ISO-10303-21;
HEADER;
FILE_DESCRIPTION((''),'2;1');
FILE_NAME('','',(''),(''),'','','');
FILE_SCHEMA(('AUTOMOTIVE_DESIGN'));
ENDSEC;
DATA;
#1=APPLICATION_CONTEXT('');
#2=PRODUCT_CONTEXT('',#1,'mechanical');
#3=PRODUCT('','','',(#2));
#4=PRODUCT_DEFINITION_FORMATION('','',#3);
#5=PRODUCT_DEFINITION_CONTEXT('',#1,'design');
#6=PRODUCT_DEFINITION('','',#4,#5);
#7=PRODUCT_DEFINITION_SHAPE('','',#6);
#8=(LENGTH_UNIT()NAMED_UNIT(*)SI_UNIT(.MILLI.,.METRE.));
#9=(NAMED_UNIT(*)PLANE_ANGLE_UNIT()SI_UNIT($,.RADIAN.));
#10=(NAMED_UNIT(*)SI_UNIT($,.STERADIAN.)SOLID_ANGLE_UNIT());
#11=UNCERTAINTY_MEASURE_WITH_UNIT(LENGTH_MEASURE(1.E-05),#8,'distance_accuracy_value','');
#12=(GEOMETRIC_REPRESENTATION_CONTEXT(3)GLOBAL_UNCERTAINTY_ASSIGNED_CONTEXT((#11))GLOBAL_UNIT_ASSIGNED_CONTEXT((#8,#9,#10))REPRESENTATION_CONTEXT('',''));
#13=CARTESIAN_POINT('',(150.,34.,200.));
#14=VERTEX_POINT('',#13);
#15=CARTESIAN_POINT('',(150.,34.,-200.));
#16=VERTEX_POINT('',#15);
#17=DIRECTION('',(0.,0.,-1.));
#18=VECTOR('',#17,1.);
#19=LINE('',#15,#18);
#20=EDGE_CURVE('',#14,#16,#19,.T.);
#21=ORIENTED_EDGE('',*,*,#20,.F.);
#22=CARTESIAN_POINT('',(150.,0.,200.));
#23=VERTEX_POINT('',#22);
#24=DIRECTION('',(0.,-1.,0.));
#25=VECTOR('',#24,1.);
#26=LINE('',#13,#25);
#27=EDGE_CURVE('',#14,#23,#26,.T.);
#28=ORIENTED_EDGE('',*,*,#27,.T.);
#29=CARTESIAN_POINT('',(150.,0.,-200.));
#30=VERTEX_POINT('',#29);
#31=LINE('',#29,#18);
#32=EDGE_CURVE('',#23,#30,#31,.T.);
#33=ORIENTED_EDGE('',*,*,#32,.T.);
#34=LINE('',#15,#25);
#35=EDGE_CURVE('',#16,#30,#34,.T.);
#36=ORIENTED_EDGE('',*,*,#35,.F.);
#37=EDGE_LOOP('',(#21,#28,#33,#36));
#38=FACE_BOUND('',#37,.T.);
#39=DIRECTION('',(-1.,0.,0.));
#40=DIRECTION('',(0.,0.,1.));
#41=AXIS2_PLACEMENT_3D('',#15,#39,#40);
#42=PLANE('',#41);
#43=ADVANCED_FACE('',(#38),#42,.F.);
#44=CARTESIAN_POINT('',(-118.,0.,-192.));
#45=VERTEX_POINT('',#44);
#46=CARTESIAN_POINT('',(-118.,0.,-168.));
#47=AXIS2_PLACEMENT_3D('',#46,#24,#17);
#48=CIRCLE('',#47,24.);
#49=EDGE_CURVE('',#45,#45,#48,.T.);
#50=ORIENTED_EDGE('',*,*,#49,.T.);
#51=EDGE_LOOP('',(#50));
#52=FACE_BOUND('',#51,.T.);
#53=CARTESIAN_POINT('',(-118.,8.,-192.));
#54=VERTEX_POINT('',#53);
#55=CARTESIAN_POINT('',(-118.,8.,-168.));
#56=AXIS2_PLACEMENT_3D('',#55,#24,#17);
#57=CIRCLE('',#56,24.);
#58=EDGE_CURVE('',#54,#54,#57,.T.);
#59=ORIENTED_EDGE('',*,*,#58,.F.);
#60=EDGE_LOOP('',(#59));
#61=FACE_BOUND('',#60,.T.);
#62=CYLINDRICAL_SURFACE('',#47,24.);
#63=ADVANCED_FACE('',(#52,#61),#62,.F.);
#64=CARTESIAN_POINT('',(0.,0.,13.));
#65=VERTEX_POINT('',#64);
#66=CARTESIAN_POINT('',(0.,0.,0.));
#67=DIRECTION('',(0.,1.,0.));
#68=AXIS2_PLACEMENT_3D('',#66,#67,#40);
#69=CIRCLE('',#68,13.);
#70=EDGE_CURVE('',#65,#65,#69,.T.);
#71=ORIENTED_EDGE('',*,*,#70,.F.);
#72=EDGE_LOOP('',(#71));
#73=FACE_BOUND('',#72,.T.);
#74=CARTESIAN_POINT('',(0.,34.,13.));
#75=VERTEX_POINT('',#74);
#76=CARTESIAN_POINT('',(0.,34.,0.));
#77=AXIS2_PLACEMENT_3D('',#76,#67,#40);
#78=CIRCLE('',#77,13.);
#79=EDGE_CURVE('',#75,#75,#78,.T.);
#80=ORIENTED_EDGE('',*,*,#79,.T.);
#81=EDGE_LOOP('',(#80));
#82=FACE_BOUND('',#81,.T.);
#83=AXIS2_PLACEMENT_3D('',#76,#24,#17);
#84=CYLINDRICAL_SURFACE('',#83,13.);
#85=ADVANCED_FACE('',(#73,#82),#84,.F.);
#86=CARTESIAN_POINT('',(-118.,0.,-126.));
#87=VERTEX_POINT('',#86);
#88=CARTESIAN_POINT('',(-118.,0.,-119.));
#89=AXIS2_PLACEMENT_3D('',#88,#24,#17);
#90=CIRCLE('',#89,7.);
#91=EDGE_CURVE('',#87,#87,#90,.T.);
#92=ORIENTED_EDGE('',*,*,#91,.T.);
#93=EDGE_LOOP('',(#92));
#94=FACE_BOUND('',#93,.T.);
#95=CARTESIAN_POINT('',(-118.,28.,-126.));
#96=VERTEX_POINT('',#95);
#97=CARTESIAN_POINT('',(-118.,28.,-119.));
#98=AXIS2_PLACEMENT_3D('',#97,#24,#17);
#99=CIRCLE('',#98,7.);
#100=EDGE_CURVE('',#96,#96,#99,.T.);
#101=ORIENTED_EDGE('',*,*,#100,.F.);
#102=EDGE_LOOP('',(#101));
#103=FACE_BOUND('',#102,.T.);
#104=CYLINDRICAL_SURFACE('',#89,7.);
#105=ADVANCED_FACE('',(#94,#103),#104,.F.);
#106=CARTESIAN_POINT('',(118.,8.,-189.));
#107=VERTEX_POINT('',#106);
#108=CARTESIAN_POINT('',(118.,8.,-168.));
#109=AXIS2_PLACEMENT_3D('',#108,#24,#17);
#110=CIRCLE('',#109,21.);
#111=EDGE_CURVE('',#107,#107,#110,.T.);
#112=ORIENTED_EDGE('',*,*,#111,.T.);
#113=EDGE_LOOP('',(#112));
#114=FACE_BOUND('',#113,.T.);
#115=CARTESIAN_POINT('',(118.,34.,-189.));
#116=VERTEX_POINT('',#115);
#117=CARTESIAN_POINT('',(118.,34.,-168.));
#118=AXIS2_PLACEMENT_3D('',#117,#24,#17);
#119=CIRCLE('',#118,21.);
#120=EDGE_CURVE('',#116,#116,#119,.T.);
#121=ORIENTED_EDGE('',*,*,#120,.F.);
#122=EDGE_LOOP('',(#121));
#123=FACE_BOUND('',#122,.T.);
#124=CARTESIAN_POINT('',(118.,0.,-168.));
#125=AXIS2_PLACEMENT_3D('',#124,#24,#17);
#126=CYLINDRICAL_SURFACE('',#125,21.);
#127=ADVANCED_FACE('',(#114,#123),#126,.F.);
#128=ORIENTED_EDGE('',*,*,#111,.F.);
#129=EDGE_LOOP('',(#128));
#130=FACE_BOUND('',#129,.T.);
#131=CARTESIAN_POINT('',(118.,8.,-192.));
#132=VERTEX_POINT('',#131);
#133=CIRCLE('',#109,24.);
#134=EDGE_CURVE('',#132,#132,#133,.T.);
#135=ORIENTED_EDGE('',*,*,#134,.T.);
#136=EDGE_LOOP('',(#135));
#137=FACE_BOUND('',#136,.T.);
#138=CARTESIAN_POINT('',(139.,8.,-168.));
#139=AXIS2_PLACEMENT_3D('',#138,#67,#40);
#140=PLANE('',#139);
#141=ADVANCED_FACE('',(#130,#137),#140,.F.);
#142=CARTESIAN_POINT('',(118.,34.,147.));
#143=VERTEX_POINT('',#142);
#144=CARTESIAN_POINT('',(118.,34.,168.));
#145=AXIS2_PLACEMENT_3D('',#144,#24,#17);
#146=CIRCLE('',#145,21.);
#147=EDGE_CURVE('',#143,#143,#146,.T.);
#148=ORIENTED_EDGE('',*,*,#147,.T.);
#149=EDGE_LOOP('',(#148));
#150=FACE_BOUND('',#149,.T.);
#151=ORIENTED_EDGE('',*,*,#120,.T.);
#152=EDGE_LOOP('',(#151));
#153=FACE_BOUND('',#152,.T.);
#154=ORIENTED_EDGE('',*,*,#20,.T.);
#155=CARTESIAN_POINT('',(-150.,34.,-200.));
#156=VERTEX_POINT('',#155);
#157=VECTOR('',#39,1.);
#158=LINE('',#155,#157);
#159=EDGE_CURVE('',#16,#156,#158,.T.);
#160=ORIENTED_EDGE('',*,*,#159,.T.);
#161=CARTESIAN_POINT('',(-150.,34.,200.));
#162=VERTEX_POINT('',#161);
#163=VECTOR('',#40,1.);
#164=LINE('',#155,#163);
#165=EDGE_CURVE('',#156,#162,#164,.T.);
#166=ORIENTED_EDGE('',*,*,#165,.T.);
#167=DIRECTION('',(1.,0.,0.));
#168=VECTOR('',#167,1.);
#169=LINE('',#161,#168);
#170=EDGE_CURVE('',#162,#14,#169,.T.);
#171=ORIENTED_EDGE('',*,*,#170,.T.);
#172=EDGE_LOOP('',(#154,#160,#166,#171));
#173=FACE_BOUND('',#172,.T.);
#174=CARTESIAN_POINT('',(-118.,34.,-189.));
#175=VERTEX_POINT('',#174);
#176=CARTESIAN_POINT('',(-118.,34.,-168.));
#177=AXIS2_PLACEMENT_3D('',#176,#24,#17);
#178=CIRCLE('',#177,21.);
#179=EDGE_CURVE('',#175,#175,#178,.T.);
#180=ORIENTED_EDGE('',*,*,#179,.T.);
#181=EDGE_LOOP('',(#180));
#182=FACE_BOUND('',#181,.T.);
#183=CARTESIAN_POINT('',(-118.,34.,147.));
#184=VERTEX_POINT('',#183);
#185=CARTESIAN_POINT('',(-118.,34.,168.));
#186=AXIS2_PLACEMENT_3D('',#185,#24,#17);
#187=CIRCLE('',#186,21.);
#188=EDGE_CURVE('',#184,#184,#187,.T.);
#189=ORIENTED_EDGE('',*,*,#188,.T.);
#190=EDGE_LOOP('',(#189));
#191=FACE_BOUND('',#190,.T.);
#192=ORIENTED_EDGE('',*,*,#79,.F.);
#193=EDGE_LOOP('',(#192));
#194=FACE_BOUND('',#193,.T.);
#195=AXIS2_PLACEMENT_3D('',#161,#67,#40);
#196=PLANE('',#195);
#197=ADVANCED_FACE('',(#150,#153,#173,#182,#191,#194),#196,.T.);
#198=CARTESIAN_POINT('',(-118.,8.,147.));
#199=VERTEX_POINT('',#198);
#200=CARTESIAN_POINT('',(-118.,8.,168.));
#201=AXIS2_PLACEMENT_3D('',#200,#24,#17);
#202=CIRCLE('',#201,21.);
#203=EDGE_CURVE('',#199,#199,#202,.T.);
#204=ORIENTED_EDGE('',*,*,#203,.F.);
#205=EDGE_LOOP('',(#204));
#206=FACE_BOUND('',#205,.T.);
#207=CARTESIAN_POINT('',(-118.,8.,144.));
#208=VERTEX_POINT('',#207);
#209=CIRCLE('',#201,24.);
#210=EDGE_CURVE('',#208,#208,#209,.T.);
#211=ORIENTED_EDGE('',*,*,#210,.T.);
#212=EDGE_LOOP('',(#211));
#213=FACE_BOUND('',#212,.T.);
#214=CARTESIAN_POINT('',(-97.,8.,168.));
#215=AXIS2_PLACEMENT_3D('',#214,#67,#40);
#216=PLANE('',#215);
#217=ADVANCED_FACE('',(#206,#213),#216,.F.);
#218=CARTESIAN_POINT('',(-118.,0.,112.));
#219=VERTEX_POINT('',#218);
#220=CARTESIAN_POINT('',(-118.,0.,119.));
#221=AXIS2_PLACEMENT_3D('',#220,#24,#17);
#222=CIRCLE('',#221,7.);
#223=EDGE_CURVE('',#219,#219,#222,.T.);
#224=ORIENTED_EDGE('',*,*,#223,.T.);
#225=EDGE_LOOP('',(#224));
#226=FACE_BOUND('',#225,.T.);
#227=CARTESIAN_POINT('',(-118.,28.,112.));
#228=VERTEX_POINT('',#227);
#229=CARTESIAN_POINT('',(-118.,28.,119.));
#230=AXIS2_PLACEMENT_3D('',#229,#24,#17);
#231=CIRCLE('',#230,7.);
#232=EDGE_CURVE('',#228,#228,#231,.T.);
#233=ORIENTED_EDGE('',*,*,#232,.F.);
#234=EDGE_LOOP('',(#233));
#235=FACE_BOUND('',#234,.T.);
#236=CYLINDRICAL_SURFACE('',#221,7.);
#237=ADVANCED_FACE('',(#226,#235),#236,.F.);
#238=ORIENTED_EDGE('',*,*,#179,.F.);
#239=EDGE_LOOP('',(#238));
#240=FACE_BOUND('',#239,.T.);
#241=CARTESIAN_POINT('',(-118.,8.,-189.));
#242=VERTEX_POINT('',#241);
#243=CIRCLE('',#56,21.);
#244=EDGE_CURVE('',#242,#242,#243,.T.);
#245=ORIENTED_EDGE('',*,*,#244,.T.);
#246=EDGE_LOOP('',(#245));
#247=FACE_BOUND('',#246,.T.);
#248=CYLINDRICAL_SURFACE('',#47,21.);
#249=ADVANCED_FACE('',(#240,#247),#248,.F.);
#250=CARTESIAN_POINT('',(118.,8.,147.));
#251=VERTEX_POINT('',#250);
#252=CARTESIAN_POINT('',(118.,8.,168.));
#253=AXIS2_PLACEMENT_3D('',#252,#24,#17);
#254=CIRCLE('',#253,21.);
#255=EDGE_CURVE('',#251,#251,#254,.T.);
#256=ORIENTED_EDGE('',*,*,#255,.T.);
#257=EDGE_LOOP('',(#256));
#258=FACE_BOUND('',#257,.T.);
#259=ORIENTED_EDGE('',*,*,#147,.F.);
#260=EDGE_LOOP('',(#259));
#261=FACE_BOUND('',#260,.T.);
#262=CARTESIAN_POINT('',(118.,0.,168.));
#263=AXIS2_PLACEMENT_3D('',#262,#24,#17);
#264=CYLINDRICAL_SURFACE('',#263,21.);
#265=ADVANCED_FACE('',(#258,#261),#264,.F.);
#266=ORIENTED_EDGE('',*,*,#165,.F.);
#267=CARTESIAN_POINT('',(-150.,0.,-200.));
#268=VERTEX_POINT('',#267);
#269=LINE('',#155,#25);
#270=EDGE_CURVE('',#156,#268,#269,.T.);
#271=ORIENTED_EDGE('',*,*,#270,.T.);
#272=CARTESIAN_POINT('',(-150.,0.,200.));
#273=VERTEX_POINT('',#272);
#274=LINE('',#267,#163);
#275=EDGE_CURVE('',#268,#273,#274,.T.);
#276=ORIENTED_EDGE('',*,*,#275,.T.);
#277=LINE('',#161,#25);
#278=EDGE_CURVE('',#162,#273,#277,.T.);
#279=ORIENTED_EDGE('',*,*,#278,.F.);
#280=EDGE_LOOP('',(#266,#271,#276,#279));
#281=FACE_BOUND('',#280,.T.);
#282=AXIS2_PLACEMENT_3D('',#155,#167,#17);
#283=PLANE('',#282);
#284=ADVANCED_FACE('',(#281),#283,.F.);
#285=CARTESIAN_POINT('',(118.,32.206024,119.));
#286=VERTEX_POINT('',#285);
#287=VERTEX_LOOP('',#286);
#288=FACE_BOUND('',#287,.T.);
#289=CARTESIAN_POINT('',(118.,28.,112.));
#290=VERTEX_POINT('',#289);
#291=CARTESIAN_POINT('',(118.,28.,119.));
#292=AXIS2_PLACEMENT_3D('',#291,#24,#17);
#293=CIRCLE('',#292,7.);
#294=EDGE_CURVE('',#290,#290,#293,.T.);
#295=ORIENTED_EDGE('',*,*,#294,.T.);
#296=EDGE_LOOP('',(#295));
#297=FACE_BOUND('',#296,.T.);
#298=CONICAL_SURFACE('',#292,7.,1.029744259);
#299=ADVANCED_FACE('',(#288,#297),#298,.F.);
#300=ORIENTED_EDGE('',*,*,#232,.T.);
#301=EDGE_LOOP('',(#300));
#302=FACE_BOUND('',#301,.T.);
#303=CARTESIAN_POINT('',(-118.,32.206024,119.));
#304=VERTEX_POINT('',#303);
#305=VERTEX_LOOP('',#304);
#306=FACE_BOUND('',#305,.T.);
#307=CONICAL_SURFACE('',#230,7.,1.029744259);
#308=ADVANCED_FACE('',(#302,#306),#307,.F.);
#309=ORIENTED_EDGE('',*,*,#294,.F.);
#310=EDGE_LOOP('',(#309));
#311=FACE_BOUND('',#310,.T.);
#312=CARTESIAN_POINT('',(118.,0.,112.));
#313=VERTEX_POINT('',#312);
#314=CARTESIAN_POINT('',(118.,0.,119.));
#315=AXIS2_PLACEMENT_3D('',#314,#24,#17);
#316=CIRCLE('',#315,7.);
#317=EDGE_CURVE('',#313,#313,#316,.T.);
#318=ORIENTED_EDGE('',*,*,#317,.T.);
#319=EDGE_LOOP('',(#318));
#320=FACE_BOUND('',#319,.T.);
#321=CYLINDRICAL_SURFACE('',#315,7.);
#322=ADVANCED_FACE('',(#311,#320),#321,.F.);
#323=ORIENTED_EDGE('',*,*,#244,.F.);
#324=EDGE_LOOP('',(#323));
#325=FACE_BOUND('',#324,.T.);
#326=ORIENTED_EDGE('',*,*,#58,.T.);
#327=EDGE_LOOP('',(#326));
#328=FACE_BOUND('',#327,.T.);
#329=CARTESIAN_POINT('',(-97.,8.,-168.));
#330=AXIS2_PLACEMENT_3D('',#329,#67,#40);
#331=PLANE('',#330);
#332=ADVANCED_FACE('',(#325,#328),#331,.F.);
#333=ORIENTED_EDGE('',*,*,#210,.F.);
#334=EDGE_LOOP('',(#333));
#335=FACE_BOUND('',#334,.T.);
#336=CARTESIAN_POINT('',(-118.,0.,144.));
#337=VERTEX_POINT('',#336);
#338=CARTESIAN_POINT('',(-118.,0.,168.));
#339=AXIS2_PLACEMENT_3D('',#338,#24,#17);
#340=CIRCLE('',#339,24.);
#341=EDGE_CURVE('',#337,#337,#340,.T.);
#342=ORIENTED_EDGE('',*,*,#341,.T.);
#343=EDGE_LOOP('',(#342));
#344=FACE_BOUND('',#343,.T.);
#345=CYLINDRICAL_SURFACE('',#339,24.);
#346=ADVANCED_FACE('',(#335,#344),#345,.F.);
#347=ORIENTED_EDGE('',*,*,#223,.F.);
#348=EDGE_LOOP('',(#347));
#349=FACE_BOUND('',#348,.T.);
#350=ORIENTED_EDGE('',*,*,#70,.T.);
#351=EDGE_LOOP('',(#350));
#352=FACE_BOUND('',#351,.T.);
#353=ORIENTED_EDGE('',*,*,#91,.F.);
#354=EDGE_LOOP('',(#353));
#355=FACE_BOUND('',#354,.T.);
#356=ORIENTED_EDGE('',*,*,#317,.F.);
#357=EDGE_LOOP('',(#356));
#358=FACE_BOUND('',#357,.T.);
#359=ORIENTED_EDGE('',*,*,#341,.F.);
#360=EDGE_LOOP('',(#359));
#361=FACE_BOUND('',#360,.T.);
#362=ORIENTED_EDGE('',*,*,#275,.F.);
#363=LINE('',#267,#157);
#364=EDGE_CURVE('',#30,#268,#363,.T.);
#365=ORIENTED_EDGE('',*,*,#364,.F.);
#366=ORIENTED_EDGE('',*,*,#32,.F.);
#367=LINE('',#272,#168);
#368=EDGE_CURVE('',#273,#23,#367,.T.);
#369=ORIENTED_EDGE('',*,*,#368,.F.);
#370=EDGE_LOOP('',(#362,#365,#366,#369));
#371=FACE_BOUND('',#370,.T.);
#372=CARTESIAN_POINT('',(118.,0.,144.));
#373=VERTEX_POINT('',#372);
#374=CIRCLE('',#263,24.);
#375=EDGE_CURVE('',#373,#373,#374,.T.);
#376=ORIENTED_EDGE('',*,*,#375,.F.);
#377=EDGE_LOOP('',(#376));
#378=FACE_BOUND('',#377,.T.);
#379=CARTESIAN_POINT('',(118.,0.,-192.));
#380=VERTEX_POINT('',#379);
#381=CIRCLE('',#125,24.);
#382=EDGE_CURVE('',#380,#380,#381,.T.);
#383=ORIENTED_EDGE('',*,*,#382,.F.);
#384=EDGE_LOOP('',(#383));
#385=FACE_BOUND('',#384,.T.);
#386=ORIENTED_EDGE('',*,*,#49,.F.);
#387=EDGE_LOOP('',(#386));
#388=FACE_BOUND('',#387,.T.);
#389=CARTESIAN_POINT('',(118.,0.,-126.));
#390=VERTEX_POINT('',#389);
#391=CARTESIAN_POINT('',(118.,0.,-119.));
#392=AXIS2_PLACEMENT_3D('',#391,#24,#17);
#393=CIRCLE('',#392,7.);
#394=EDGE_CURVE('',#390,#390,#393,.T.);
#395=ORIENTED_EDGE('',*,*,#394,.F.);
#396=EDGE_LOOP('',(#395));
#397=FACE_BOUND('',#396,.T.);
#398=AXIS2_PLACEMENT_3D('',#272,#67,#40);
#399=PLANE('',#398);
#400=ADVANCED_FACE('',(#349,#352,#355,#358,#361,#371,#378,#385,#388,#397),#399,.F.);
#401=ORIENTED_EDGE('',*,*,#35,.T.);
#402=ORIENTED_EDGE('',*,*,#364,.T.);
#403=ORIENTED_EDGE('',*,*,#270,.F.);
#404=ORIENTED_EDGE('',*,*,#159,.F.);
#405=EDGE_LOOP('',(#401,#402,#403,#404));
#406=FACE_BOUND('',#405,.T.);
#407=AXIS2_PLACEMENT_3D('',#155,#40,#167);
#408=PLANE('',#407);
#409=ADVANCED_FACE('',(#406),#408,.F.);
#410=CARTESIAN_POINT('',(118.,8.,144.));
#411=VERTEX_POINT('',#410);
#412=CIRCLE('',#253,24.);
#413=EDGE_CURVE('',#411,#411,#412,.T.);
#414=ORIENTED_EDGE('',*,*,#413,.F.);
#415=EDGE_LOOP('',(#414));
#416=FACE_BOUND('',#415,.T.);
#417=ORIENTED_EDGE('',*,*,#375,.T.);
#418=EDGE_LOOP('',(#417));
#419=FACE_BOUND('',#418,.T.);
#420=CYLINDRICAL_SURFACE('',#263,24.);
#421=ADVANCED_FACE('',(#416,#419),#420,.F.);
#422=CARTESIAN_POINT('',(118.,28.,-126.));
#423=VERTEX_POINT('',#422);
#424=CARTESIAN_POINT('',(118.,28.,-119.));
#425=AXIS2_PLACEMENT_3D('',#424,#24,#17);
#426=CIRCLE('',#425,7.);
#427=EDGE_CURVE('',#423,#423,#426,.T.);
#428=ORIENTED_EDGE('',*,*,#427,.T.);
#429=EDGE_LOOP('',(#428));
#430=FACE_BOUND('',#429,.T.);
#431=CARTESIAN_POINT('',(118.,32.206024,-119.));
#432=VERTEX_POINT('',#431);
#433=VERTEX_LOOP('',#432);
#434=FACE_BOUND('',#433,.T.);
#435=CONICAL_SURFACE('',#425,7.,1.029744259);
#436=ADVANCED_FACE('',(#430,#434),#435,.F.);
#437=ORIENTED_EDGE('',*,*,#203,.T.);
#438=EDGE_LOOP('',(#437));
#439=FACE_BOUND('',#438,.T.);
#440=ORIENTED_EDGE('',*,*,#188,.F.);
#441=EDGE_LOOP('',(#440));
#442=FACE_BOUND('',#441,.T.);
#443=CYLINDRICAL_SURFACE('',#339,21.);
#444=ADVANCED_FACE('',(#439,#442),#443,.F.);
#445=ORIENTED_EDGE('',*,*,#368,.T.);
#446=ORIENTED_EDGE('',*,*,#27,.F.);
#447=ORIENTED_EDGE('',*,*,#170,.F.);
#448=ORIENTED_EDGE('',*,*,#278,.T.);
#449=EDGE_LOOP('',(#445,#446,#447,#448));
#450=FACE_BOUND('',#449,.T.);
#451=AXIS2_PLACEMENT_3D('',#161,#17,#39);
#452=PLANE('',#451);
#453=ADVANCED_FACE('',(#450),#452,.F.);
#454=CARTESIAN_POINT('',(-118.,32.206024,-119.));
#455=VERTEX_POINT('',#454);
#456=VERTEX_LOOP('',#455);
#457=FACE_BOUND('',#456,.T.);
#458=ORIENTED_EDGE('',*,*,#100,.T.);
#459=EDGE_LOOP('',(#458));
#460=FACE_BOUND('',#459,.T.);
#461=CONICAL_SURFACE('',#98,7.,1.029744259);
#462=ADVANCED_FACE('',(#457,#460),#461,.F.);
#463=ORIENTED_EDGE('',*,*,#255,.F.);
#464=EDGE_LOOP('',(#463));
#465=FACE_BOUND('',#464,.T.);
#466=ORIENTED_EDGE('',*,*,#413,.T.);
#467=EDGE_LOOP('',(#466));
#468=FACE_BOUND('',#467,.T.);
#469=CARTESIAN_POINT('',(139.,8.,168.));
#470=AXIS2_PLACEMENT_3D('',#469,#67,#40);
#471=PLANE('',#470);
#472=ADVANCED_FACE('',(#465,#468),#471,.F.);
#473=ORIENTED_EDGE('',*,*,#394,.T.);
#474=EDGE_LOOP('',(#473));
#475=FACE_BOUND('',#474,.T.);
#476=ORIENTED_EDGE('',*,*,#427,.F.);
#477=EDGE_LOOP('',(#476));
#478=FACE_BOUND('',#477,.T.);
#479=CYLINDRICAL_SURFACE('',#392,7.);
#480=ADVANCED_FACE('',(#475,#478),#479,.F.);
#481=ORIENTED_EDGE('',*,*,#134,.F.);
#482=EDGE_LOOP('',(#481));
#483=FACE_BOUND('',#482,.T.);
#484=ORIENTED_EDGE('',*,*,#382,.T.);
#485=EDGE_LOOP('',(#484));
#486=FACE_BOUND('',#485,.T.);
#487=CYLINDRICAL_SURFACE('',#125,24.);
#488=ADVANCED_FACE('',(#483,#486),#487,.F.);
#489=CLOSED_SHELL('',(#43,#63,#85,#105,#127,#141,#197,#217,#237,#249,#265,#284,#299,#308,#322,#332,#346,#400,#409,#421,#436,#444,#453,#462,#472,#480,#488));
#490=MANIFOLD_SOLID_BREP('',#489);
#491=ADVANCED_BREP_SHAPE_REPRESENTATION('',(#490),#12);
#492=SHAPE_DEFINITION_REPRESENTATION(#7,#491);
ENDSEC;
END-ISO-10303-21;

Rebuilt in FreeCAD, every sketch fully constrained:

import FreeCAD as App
import Part
import Sketcher

V = App.Vector


def add_polygon(sketch, points):
    """Adds a closed chain of lines whose ends are joined by coincident constraints."""
    first, n = sketch.GeometryCount, len(points)
    for a, b in zip(points, points[1:] + points[:1]):
        sketch.addGeometry(Part.LineSegment(App.Vector(*a, 0), App.Vector(*b, 0)), False)
    for i in range(n):
        sketch.addConstraint(Sketcher.Constraint("Coincident", first + i, 2, first + (i + 1) % n, 1))

doc = App.newDocument("Part")
body = doc.addObject("PartDesign::Body", "Body")

# Sketch on XZ plane
sketch1 = doc.addObject("Sketcher::SketchObject", "Sketch")
body.addObject(sketch1)
sketch1.AttachmentSupport = (doc.XZ_Plane, [""])
sketch1.MapMode = "FlatFace"
add_polygon(sketch1, [(-150, -200), (-150, 200), (150, 200), (150, -200)])  # lines 0-3
sketch1.addGeometry(Part.Circle(V(0, 0, 0), V(0, 0, 1), 13), False)  # 4
sketch1.addConstraint([
    Sketcher.Constraint("Vertical", 0),
    Sketcher.Constraint("Horizontal", 1),
    Sketcher.Constraint("Vertical", 2),
    Sketcher.Constraint("Horizontal", 3),
    Sketcher.Constraint("Coincident", 4, 3, -1, 1),
    Sketcher.Constraint("Symmetric", 0, 2, 2, 2, -1, 1),
    Sketcher.Constraint("Diameter", 4, 26.0),
    Sketcher.Constraint("DistanceX", 1, 1, 1, 2, 300.0),
    Sketcher.Constraint("DistanceY", 0, 1, 0, 2, 400.0),
])
pad1 = doc.addObject("PartDesign::Pad", "Pad")
body.addObject(pad1)
pad1.Profile = sketch1
pad1.Length = 34
pad1.Reversed = True

# Sketch on XZ plane
sketch2 = doc.addObject("Sketcher::SketchObject", "Sketch001")
body.addObject(sketch2)
sketch2.AttachmentSupport = (doc.XZ_Plane, [""])
sketch2.MapMode = "FlatFace"
sketch2.addGeometry([
    Part.Circle(V(-118, 119, 0), V(0, 0, 1), 7),
    Part.Circle(V(118, 119, 0), V(0, 0, 1), 7),
    Part.Circle(V(-118, -119, 0), V(0, 0, 1), 7),
    Part.Circle(V(118, -119, 0), V(0, 0, 1), 7),
], False)
sketch2.addConstraint([
    Sketcher.Constraint("Equal", 0, 1),
    Sketcher.Constraint("Equal", 1, 2),
    Sketcher.Constraint("Equal", 2, 3),
    Sketcher.Constraint("Symmetric", 1, 3, 2, 3, -1, 1),
    Sketcher.Constraint("Symmetric", 0, 3, 3, 3, -1, 1),
    Sketcher.Constraint("Symmetric", 0, 3, 1, 3, -2),
    Sketcher.Constraint("Diameter", 0, 14.0),
    Sketcher.Constraint("DistanceX", 0, 3, -1, 1, 118.0),
    Sketcher.Constraint("DistanceY", -1, 1, 0, 3, 119.0),
])
doc.recompute()
hole = doc.addObject("PartDesign::Hole", "Hole")
body.addObject(hole)
hole.Profile = sketch2
hole.ThreadType = "None"
hole.Diameter = 14
hole.DepthType = "Dimension"
hole.Depth = 28
hole.DrillPoint = "Angled"
hole.DrillPointAngle = 118

# Sketch on XZ plane
sketch3 = doc.addObject("Sketcher::SketchObject", "Sketch002")
body.addObject(sketch3)
sketch3.AttachmentSupport = (doc.XZ_Plane, [""])
sketch3.MapMode = "FlatFace"
sketch3.addGeometry([
    Part.Circle(V(118, 168, 0), V(0, 0, 1), 21),
    Part.Circle(V(118, -168, 0), V(0, 0, 1), 21),
    Part.Circle(V(-118, -168, 0), V(0, 0, 1), 21),
    Part.Circle(V(-118, 168, 0), V(0, 0, 1), 21),
], False)
sketch3.addConstraint([
    Sketcher.Constraint("Equal", 0, 1),
    Sketcher.Constraint("Equal", 1, 2),
    Sketcher.Constraint("Equal", 2, 3),
    Sketcher.Constraint("Symmetric", 0, 3, 2, 3, -1, 1),
    Sketcher.Constraint("Symmetric", 1, 3, 3, 3, -1, 1),
    Sketcher.Constraint("Symmetric", 1, 3, 2, 3, -2),
    Sketcher.Constraint("Diameter", 0, 42.0),
    Sketcher.Constraint("DistanceX", -1, 1, 0, 3, 118.0),
    Sketcher.Constraint("DistanceY", -1, 1, 0, 3, 168.0),
])
doc.recompute()
hole2 = doc.addObject("PartDesign::Hole", "Hole001")
body.addObject(hole2)
hole2.Profile = sketch3
hole2.ThreadType = "None"
hole2.Diameter = 42
hole2.DepthType = "ThroughAll"
hole2.HoleCutType = "Counterbore"
hole2.HoleCutDiameter = 48
hole2.HoleCutDepth = 8

doc.recompute()
